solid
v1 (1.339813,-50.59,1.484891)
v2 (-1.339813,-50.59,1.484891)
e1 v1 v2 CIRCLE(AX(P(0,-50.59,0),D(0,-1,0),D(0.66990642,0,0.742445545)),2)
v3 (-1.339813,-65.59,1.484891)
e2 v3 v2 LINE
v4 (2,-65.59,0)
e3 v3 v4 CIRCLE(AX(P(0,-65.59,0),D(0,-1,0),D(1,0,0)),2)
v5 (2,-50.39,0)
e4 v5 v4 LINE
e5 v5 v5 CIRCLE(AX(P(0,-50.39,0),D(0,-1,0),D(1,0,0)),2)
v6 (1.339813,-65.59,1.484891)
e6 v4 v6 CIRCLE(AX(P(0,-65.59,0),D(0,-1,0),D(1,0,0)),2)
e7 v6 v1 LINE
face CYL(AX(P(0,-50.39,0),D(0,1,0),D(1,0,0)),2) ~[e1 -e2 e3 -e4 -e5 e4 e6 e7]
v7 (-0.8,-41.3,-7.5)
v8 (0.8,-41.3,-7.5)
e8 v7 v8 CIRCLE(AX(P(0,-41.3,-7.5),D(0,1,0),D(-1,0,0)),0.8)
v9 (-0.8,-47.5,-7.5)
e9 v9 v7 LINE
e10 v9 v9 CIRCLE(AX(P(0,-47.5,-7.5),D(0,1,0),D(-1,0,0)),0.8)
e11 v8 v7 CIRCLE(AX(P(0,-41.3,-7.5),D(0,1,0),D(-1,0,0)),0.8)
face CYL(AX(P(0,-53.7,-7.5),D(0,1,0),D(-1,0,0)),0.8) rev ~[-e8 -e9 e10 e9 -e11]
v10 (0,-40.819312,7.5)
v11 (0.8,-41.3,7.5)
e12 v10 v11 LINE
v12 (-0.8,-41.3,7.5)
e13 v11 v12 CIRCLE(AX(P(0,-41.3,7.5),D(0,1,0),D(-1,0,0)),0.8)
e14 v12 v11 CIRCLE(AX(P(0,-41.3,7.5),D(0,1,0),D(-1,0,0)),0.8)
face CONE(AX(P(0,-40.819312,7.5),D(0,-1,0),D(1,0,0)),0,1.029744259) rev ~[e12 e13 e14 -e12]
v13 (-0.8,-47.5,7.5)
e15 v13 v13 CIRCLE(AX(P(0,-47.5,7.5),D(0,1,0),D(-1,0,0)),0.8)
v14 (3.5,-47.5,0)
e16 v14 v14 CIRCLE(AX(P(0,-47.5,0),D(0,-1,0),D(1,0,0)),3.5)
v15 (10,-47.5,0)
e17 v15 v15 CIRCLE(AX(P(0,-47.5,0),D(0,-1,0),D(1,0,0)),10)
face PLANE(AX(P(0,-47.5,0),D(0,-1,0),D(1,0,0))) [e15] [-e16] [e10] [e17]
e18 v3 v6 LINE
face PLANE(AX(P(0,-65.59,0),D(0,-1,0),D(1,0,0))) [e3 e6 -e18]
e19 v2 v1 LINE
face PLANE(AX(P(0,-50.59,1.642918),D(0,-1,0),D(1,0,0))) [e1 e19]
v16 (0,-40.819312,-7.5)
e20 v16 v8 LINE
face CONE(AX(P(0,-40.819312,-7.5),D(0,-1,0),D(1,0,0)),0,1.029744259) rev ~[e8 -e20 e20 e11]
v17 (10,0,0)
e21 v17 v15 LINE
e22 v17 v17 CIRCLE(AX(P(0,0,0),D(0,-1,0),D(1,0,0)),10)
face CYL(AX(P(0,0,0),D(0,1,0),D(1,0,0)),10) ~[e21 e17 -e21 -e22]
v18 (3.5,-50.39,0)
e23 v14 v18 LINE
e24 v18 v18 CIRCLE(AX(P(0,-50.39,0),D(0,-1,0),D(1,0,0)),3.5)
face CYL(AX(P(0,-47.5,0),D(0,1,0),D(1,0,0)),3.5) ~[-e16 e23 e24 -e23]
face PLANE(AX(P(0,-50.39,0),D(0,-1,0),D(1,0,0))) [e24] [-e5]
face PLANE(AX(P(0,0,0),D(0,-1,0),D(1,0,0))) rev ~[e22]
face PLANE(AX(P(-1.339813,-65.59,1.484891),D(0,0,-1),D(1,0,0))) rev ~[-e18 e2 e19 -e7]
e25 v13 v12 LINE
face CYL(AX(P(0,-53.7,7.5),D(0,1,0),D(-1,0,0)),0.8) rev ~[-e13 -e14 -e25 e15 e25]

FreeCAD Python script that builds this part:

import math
import FreeCAD as App
import Part
import Sketcher

V = App.Vector

doc = App.newDocument("Part")
body = doc.addObject("PartDesign::Body", "Body")

# Sketch on XZ plane
sketch1 = body.newObject("Sketcher::SketchObject", "Sketch")
sketch1.AttachmentSupport = (doc.getObject("XZ_Plane"), [""])
sketch1.MapMode = "FlatFace"
sketch1.addGeometry(Part.Circle(V(0, 0, 0), V(0, 0, 1), 10), False)
sketch1.addConstraint(Sketcher.Constraint("Coincident", 0, 3, -1, 1))
sketch1.addConstraint(Sketcher.Constraint("Diameter", 0, 20.0))
pad1 = body.newObject("PartDesign::Pad", "Pad")
pad1.Profile = sketch1
pad1.Length = 47.5

# Sketch on XZ plane
sketch2 = body.newObject("Sketcher::SketchObject", "Sketch001")
sketch2.AttachmentSupport = (doc.getObject("XZ_Plane"), [""])
sketch2.MapMode = "FlatFace"
sketch2.AttachmentOffset = App.Placement(V(0, 0, 47.5), App.Rotation())
sketch2.addGeometry(Part.Circle(V(0, 0, 0), V(0, 0, 1), 3.5), False)
sketch2.addConstraint(Sketcher.Constraint("Coincident", 0, 3, -1, 1))
sketch2.addConstraint(Sketcher.Constraint("Diameter", 0, 7.0))
pad2 = body.newObject("PartDesign::Pad", "Pad001")
pad2.Profile = sketch2
pad2.Length = 2.89

# Sketch on XZ plane
sketch3 = body.newObject("Sketcher::SketchObject", "Sketch002")
sketch3.AttachmentSupport = (doc.getObject("XZ_Plane"), [""])
sketch3.MapMode = "FlatFace"
sketch3.AttachmentOffset = App.Placement(V(0, 0, 50.39), App.Rotation())
sketch3.addGeometry(Part.Circle(V(0, 0, 0), V(0, 0, 1), 2), False)
sketch3.addConstraint(Sketcher.Constraint("Coincident", 0, 3, -1, 1))
sketch3.addConstraint(Sketcher.Constraint("Diameter", 0, 4.0))
pad3 = body.newObject("PartDesign::Pad", "Pad002")
pad3.Profile = sketch3
pad3.Length = 15.2

# Sketch on XZ plane
sketch4 = body.newObject("Sketcher::SketchObject", "Sketch003")
sketch4.AttachmentSupport = (doc.getObject("XZ_Plane"), [""])
sketch4.MapMode = "FlatFace"
sketch4.AttachmentOffset = App.Placement(V(0, 0, 47.5), App.Rotation())
sketch4.addGeometry(Part.Circle(V(0, 7.5, 0), V(0, 0, 1), 0.8), False)
sketch4.addGeometry(Part.Circle(V(0, -7.5, 0), V(0, 0, 1), 0.8), False)
sketch4.addConstraint(Sketcher.Constraint("Equal", 0, 1))
sketch4.addConstraint(Sketcher.Constraint("Symmetric", 0, 3, 1, 3, -1, 1))
sketch4.addConstraint(Sketcher.Constraint("PointOnObject", 0, 3, -2))
sketch4.addConstraint(Sketcher.Constraint("Diameter", 0, 1.6))
sketch4.addConstraint(Sketcher.Constraint("DistanceY", 1, 3, 0, 3, 15.0))
doc.recompute()
hole = body.newObject("PartDesign::Hole", "Hole")
hole.Profile = sketch4
hole.ThreadType = "None"
hole.Diameter = 1.6
hole.DepthType = "Dimension"
hole.Depth = 6.2
hole.DrillPoint = "Angled"
hole.DrillPointAngle = 118

# Sketch on XZ plane
sketch5 = body.newObject("Sketcher::SketchObject", "Sketch004")
sketch5.AttachmentSupport = (doc.getObject("XZ_Plane"), [""])
sketch5.MapMode = "FlatFace"
sketch5.AttachmentOffset = App.Placement(V(0, 0, 65.59), App.Rotation())
sketch5.addGeometry(Part.ArcOfCircle(Part.Circle(V(0, 0, 0), V(0, 0, 1), 2), math.radians(48), math.radians(132)), False)
sketch5.addGeometry(Part.LineSegment(V(-1.3, 1.5, 0), V(1.3, 1.5, 0)), False)
sketch5.addConstraint(Sketcher.Constraint("Coincident", 0, 1, 1, 2))
sketch5.addConstraint(Sketcher.Constraint("Coincident", 1, 1, 0, 2))
sketch5.addConstraint(Sketcher.Constraint("Horizontal", 1))
sketch5.addConstraint(Sketcher.Constraint("Coincident", 0, 3, -1, 1))
sketch5.addConstraint(Sketcher.Constraint("Radius", 0, 2.0))
sketch5.addConstraint(Sketcher.Constraint("DistanceX", 1, 1, 1, 2, 2.679626))
pocket1 = body.newObject("PartDesign::Pocket", "Pocket")
pocket1.Profile = sketch5
pocket1.Length = 15

doc.recompute()
